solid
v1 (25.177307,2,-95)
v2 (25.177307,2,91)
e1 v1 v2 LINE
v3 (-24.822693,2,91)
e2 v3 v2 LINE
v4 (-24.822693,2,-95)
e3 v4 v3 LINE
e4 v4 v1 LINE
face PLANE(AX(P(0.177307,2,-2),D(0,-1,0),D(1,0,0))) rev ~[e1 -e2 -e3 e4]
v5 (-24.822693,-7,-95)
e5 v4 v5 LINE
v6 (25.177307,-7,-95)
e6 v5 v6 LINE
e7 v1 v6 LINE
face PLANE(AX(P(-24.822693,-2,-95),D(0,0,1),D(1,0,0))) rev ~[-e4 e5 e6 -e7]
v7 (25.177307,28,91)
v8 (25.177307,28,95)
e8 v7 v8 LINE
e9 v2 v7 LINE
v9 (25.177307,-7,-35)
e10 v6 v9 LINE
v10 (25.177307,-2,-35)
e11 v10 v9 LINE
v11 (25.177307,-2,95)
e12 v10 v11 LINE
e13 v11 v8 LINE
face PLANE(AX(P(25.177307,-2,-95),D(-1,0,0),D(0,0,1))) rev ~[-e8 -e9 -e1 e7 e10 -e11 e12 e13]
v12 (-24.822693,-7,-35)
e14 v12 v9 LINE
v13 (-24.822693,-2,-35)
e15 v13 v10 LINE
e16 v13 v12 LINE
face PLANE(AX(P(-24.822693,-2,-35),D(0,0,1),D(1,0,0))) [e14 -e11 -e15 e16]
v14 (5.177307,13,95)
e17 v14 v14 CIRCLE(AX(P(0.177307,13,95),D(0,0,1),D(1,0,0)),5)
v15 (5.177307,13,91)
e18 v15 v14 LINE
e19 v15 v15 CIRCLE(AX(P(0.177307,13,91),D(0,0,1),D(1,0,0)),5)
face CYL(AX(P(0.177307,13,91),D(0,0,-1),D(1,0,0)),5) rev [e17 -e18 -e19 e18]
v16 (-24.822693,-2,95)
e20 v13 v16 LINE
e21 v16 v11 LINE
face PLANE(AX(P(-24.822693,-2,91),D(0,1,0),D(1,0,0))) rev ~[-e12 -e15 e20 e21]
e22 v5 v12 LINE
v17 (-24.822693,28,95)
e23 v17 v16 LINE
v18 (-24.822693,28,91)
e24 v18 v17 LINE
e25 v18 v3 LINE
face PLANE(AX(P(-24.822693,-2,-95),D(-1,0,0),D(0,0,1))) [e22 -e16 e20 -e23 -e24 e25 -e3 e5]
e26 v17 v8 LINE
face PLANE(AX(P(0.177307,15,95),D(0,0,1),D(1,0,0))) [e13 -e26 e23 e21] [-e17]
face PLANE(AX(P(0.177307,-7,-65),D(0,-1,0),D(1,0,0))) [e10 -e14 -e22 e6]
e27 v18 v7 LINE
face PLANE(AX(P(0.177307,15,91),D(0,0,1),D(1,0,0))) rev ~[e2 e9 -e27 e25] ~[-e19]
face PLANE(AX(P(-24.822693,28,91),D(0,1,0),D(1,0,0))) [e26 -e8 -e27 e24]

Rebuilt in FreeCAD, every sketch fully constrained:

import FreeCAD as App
import Part
import Sketcher


def add_polygon(sketch, points):
    """Adds a closed chain of lines whose ends are joined by coincident constraints."""
    first, n = sketch.GeometryCount, len(points)
    for a, b in zip(points, points[1:] + points[:1]):
        sketch.addGeometry(Part.LineSegment(App.Vector(*a, 0), App.Vector(*b, 0)), False)
    for i in range(n):
        sketch.addConstraint(Sketcher.Constraint("Coincident", first + i, 2, first + (i + 1) % n, 1))

doc = App.newDocument("Part")
body = doc.addObject("PartDesign::Body", "Body")

# Sketch on XZ plane
sketch1 = body.newObject("Sketcher::SketchObject", "Sketch")
sketch1.AttachmentSupport = (doc.getObject("XZ_Plane"), [""])
sketch1.MapMode = "FlatFace"
add_polygon(sketch1, [(-25, 91), (-25, -95), (25, -95), (25, 91)])  # lines 0-3
sketch1.addConstraint(Sketcher.Constraint("Vertical", 0))
sketch1.addConstraint(Sketcher.Constraint("Horizontal", 1))
sketch1.addConstraint(Sketcher.Constraint("Vertical", 2))
sketch1.addConstraint(Sketcher.Constraint("Horizontal", 3))
sketch1.addConstraint(Sketcher.Constraint("DistanceX", 1, 1, 1, 2, 50.0))
sketch1.addConstraint(Sketcher.Constraint("DistanceY", 0, 2, 0, 1, 186.0))
sketch1.addConstraint(Sketcher.Constraint("DistanceY", 0, 2, -1, 1, 95.0))
sketch1.addConstraint(Sketcher.Constraint("DistanceX", 0, 2, -1, 1, 24.822693))
pad1 = body.newObject("PartDesign::Pad", "Pad")
pad1.Profile = sketch1
pad1.Length = 4
pad1.Midplane = True

# Sketch on XY plane
sketch2 = body.newObject("Sketcher::SketchObject", "Sketch001")
sketch2.AttachmentSupport = (doc.getObject("XY_Plane"), [""])
sketch2.MapMode = "FlatFace"
sketch2.AttachmentOffset = App.Placement(App.Vector(0, 0, 91), App.Rotation())
add_polygon(sketch2, [(-25, 28), (-25, -2), (25, -2), (25, 28)])  # lines 0-3
sketch2.addGeometry(Part.Circle(App.Vector(0, 13, 0), App.Vector(0, 0, 1), 5), False)  # 4
sketch2.addConstraint(Sketcher.Constraint("Vertical", 0))
sketch2.addConstraint(Sketcher.Constraint("Horizontal", 1))
sketch2.addConstraint(Sketcher.Constraint("Vertical", 2))
sketch2.addConstraint(Sketcher.Constraint("Horizontal", 3))
sketch2.addConstraint(Sketcher.Constraint("Diameter", 4, 10.0))
sketch2.addConstraint(Sketcher.Constraint("DistanceX", 1, 1, 1, 2, 50.0))
sketch2.addConstraint(Sketcher.Constraint("DistanceY", 0, 2, 0, 1, 30.0))
sketch2.addConstraint(Sketcher.Constraint("DistanceY", -1, 1, 4, 3, 13.0))
sketch2.addConstraint(Sketcher.Constraint("DistanceY", 0, 2, -1, 1, 2.0))
sketch2.addConstraint(Sketcher.Constraint("DistanceX", 0, 2, 4, 3, 25.0))
sketch2.addConstraint(Sketcher.Constraint("DistanceX", -1, 1, 4, 3, 0.177307))
pad2 = body.newObject("PartDesign::Pad", "Pad001")
pad2.Profile = sketch2
pad2.Length = 4

# Sketch on XZ plane
sketch3 = body.newObject("Sketcher::SketchObject", "Sketch002")
sketch3.AttachmentSupport = (doc.getObject("XZ_Plane"), [""])
sketch3.MapMode = "FlatFace"
sketch3.AttachmentOffset = App.Placement(App.Vector(0, 0, 2), App.Rotation())
add_polygon(sketch3, [(-25, -35), (-25, -95), (25, -95), (25, -35)])  # lines 0-3
sketch3.addConstraint(Sketcher.Constraint("Vertical", 0))
sketch3.addConstraint(Sketcher.Constraint("Horizontal", 1))
sketch3.addConstraint(Sketcher.Constraint("Vertical", 2))
sketch3.addConstraint(Sketcher.Constraint("Horizontal", 3))
sketch3.addConstraint(Sketcher.Constraint("DistanceX", 1, 1, 1, 2, 50.0))
sketch3.addConstraint(Sketcher.Constraint("DistanceY", 0, 2, 0, 1, 60.0))
sketch3.addConstraint(Sketcher.Constraint("DistanceY", 0, 2, -1, 1, 95.0))
sketch3.addConstraint(Sketcher.Constraint("DistanceX", 0, 2, -1, 1, 24.822693))
pad3 = body.newObject("PartDesign::Pad", "Pad002")
pad3.Profile = sketch3
pad3.Length = 5

doc.recompute()
